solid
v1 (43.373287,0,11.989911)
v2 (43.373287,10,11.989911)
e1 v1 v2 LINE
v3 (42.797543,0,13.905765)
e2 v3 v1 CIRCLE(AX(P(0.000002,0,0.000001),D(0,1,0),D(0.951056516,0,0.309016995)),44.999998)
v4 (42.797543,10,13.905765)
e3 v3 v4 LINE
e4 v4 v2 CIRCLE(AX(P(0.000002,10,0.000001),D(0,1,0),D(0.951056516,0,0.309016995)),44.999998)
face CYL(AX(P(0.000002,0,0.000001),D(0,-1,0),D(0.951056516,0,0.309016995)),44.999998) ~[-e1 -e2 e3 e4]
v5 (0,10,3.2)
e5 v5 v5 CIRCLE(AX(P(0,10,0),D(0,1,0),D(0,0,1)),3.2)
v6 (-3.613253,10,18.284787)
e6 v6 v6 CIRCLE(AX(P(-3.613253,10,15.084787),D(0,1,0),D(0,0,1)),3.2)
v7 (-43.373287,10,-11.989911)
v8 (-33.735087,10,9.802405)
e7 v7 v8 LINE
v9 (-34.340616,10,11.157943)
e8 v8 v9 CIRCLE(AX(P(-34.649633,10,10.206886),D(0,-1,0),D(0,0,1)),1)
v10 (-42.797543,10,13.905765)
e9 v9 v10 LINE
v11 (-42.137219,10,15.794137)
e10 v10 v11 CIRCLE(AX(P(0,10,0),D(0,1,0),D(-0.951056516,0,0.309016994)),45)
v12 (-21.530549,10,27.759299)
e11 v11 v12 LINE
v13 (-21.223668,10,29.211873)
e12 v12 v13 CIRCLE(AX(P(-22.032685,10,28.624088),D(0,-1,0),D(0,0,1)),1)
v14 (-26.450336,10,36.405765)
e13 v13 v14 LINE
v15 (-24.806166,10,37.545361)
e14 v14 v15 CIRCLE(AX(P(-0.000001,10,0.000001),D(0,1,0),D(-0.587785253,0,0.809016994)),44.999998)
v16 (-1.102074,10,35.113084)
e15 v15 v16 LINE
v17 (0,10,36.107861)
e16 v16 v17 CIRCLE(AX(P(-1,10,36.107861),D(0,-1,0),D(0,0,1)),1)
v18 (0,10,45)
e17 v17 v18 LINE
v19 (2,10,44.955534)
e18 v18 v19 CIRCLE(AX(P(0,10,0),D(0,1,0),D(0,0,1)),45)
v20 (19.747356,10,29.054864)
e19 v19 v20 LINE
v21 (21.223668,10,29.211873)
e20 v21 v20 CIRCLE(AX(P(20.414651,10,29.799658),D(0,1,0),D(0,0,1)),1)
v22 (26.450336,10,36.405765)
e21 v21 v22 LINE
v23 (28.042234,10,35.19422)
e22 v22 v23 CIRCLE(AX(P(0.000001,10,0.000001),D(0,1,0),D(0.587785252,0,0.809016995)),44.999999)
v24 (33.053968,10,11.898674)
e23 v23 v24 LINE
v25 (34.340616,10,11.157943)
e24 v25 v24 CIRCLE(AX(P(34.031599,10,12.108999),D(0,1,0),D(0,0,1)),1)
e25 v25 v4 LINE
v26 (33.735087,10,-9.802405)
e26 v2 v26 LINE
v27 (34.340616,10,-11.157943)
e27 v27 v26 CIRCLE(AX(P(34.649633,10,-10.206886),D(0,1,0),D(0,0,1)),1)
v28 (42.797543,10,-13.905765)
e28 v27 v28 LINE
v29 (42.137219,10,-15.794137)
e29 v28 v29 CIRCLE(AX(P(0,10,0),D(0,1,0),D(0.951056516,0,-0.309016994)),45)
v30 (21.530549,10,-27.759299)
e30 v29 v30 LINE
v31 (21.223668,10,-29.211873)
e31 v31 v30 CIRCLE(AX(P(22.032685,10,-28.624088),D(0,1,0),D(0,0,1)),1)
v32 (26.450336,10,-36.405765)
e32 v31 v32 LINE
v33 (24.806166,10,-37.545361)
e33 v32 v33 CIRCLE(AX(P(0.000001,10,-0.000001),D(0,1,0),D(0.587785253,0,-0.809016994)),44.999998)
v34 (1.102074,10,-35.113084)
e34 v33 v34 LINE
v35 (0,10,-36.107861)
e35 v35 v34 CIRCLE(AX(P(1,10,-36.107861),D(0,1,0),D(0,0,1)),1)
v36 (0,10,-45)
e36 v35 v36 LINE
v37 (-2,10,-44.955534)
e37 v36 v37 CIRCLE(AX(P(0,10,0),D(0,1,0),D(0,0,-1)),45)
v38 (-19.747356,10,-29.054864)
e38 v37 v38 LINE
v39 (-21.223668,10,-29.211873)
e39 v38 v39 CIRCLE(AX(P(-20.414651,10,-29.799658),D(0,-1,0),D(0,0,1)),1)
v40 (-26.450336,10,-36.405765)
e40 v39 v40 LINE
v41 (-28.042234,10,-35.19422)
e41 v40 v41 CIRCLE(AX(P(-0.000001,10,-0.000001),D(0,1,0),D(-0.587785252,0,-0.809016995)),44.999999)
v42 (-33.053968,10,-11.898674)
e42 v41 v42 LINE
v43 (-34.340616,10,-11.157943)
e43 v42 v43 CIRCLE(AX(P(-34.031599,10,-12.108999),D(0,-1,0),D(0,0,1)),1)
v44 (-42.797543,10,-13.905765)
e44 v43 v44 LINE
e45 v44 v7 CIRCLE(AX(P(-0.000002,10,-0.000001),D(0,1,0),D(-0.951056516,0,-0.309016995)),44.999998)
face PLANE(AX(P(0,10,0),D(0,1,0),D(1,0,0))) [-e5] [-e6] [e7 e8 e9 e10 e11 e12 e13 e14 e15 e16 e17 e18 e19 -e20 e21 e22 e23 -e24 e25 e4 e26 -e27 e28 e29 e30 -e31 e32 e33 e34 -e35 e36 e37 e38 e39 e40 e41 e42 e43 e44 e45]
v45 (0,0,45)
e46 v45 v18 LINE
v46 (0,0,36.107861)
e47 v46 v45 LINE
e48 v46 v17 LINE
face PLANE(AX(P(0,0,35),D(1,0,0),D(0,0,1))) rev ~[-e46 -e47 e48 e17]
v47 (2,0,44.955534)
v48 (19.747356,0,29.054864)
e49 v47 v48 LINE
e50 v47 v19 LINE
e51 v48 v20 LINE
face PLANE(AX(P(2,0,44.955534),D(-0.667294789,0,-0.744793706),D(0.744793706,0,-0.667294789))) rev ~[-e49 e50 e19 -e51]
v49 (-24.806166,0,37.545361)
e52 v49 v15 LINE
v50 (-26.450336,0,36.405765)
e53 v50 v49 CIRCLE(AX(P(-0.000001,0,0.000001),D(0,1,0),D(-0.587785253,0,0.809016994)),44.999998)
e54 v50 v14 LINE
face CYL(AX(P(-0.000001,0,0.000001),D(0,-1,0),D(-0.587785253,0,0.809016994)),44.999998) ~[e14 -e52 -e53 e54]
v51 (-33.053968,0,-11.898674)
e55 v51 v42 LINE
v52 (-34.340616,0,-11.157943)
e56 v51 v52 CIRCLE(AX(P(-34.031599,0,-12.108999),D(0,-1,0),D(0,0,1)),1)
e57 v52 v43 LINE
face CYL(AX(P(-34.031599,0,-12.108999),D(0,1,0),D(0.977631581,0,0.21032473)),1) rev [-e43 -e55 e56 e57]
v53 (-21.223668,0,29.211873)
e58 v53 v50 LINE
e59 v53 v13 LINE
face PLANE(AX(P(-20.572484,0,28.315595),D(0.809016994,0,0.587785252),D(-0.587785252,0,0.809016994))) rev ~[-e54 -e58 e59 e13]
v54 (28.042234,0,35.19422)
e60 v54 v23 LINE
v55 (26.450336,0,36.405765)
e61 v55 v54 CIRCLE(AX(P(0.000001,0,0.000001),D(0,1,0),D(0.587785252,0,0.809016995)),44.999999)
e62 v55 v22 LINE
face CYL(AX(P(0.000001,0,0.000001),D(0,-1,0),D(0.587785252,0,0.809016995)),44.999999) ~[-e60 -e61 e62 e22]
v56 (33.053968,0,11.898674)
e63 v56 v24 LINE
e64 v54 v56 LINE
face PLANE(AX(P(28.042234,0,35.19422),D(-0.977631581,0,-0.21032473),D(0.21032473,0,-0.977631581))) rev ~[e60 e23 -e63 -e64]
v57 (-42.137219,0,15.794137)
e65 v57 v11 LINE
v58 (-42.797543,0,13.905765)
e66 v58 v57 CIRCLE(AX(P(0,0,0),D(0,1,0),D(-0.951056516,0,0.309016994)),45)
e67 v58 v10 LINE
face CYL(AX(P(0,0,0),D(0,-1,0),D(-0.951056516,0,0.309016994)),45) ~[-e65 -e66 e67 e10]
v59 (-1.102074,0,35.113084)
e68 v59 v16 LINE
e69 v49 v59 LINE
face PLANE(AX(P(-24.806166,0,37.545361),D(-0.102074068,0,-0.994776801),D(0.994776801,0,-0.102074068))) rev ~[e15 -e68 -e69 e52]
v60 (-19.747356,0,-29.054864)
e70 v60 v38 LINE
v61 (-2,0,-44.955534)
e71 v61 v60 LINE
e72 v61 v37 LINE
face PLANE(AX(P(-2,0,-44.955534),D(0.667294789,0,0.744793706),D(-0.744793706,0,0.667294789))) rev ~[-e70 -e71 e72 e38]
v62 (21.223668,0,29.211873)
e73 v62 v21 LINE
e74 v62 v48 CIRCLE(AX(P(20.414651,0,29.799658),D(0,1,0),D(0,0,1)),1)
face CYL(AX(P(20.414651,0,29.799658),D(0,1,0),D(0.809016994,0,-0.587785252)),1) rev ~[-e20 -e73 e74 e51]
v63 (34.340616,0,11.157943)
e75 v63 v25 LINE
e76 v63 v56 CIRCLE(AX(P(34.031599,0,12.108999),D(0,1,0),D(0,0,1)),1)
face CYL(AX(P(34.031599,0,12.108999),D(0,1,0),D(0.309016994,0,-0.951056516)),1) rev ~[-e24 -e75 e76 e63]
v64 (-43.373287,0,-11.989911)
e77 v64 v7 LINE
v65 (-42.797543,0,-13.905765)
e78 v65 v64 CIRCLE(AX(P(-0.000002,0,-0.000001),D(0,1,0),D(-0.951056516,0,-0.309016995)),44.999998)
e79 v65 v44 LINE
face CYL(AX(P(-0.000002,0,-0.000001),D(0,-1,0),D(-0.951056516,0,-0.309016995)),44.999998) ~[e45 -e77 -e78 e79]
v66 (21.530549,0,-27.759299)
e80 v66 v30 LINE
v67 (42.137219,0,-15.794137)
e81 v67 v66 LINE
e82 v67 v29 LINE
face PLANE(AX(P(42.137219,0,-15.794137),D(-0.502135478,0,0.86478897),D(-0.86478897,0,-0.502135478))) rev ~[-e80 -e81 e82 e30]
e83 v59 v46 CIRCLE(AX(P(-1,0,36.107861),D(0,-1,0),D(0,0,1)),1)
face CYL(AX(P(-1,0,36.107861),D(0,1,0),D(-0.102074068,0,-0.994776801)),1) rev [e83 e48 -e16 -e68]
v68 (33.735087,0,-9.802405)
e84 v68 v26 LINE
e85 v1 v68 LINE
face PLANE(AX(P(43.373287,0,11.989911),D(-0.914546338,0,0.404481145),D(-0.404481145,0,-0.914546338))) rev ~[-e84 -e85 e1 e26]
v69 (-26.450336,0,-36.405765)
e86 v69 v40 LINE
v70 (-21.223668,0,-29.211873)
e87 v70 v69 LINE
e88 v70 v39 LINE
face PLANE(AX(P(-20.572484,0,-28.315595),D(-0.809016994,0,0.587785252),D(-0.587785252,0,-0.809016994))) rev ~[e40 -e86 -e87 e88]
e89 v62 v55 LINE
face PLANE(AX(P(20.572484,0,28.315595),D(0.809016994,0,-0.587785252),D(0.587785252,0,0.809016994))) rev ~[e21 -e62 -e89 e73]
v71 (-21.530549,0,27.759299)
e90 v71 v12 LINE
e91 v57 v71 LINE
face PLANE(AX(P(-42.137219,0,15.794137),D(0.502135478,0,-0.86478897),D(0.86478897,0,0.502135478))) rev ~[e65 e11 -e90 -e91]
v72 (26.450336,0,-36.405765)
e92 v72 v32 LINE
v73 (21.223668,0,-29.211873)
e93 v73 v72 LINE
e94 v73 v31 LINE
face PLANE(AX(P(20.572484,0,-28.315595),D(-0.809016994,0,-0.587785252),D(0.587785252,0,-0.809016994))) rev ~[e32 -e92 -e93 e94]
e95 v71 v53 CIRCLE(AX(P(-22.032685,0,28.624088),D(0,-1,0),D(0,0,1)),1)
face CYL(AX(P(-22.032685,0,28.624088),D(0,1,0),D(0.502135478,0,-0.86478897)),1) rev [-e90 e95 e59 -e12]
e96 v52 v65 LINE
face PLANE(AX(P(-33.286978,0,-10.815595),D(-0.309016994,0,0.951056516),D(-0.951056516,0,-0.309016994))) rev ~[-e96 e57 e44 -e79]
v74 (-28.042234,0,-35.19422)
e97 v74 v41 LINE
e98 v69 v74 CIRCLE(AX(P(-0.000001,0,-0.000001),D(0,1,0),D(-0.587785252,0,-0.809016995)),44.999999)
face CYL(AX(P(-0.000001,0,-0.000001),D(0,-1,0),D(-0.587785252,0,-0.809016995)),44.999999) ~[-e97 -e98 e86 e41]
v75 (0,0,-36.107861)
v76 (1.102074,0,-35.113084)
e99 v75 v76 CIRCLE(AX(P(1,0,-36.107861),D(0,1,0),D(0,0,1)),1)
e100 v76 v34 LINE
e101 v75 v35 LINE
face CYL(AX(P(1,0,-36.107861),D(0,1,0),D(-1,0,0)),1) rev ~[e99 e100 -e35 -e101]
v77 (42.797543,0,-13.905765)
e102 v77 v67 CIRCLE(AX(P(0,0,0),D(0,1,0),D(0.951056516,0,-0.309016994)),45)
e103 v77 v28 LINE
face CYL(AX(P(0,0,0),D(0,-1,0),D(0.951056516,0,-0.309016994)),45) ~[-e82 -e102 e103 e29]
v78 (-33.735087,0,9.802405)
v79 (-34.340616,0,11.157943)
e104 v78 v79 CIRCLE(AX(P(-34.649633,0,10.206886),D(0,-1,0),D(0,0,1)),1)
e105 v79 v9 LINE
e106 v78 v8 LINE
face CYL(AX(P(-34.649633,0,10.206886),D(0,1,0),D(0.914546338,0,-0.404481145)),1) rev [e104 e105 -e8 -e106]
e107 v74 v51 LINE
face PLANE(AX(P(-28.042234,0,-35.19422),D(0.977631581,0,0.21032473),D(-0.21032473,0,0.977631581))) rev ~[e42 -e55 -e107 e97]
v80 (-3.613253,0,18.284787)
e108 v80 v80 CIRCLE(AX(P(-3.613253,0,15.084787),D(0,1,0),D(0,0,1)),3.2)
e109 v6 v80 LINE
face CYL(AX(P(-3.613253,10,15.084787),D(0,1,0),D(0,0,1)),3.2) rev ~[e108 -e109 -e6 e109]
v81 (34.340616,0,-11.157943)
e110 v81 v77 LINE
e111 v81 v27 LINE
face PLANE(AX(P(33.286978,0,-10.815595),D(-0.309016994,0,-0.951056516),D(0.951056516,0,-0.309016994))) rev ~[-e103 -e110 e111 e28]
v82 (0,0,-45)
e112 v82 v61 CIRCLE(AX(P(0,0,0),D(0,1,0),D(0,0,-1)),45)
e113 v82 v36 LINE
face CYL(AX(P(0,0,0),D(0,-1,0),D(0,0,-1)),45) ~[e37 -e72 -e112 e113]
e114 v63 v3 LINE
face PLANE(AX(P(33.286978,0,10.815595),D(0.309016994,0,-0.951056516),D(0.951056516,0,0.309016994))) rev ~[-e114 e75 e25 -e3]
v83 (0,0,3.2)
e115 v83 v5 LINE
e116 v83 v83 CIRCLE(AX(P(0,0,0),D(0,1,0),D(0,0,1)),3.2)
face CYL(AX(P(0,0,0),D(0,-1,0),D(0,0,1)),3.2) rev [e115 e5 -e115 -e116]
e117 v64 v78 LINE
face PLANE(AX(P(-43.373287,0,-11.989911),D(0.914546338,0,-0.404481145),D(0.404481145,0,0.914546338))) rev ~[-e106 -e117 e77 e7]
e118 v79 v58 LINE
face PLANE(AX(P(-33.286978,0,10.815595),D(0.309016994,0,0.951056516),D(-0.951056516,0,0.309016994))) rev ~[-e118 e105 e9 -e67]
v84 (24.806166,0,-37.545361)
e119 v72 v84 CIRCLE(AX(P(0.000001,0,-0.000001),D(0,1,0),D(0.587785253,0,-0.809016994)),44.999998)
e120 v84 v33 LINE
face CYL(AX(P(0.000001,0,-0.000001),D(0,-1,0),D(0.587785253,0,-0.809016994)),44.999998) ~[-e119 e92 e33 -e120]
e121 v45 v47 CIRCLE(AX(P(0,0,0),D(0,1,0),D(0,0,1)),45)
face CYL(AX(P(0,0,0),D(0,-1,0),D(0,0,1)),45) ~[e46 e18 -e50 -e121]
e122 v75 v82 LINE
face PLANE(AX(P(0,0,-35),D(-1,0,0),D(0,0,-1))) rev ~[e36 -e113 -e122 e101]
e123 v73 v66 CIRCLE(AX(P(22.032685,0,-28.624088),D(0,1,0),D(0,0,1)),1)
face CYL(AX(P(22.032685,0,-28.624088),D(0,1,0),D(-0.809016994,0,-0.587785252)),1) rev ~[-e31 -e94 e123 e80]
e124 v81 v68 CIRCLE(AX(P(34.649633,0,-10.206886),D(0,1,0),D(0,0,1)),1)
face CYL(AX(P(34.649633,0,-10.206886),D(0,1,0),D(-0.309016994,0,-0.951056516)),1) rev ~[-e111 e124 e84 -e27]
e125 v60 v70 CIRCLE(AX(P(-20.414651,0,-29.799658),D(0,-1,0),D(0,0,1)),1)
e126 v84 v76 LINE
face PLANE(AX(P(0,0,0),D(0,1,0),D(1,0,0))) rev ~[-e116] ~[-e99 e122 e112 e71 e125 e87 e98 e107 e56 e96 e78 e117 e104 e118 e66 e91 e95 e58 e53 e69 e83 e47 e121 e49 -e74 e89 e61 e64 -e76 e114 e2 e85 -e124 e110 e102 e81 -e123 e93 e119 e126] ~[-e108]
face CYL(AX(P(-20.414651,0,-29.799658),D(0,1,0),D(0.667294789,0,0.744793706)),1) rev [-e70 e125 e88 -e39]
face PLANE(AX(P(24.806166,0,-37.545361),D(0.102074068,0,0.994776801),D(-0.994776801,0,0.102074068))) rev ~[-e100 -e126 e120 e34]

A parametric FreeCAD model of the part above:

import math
import FreeCAD as App
import Part
import Sketcher

V = App.Vector
Q = App.Units.Quantity


def edges_at(feature, points):
    """Names of the edges that pass closest to the given points."""
    edges = feature.Shape.Edges
    near = lambda p: min(range(len(edges)), key=lambda i: edges[i].distToShape(Part.Vertex(*p))[0])
    return sorted({f"Edge{near(p) + 1}" for p in points})

doc = App.newDocument("Part")
body = doc.addObject("PartDesign::Body", "Body")

# Sketch on XZ plane
sketch1 = body.newObject("Sketcher::SketchObject", "Sketch")
sketch1.AttachmentSupport = (doc.getObject("XZ_Plane"), [""])
sketch1.MapMode = "FlatFace"
sketch1.addGeometry(Part.LineSegment(V(-2, -45, 0), V(-20.6, -28.3, 0)), False)
sketch1.addGeometry(Part.LineSegment(V(-20.6, -28.3, 0), V(-26.5, -36.4, 0)), False)
sketch1.addGeometry(Part.ArcOfCircle(Part.Circle(V(0, 0, 0), V(0, 0, 1), 45), math.radians(-128.55), math.radians(-126)), False)
sketch1.addGeometry(Part.LineSegment(V(-28, -35.2, 0), V(-33.3, -10.8, 0)), False)
sketch1.addGeometry(Part.LineSegment(V(-33.3, -10.8, 0), V(-42.8, -13.9, 0)), False)
sketch1.addGeometry(Part.ArcOfCircle(Part.Circle(V(0, 0, 0), V(0, 0, 1), 45), math.radians(-164.55), math.radians(-162)), False)
sketch1.addGeometry(Part.LineSegment(V(-43.4, -12, 0), V(-33.3, 10.8, 0)), False)
sketch1.addGeometry(Part.LineSegment(V(-33.3, 10.8, 0), V(-42.8, 13.9, 0)), False)
sketch1.addGeometry(Part.ArcOfCircle(Part.Circle(V(0, 0, 0), V(0, 0, 1), 45), math.radians(159.45), math.radians(162)), False)
sketch1.addGeometry(Part.LineSegment(V(-42.1, 15.8, 0), V(-20.6, 28.3, 0)), False)
sketch1.addGeometry(Part.LineSegment(V(-20.6, 28.3, 0), V(-26.5, 36.4, 0)), False)
sketch1.addGeometry(Part.ArcOfCircle(Part.Circle(V(0, 0, 0), V(0, 0, 1), 45), math.radians(123.45), math.radians(126)), False)
sketch1.addGeometry(Part.LineSegment(V(-24.8, 37.5, 0), V(0, 35, 0)), False)
sketch1.addGeometry(Part.LineSegment(V(0, 35, 0), V(0, 45, 0)), False)
sketch1.addGeometry(Part.ArcOfCircle(Part.Circle(V(0, 0, 0), V(0, 0, 1), 45), math.radians(87.45), math.radians(90)), False)
sketch1.addGeometry(Part.LineSegment(V(2, 45, 0), V(20.6, 28.3, 0)), False)
sketch1.addGeometry(Part.LineSegment(V(20.6, 28.3, 0), V(26.5, 36.4, 0)), False)
sketch1.addGeometry(Part.ArcOfCircle(Part.Circle(V(0, 0, 0), V(0, 0, 1), 45), math.radians(51.45), math.radians(54)), False)
sketch1.addGeometry(Part.LineSegment(V(28, 35.2, 0), V(33.3, 10.8, 0)), False)
sketch1.addGeometry(Part.LineSegment(V(33.3, 10.8, 0), V(42.8, 13.9, 0)), False)
sketch1.addGeometry(Part.ArcOfCircle(Part.Circle(V(0, 0, 0), V(0, 0, 1), 45), math.radians(15.45), math.radians(18)), False)
sketch1.addGeometry(Part.LineSegment(V(43.4, 12, 0), V(33.3, -10.8, 0)), False)
sketch1.addGeometry(Part.LineSegment(V(33.3, -10.8, 0), V(42.8, -13.9, 0)), False)
sketch1.addGeometry(Part.ArcOfCircle(Part.Circle(V(0, 0, 0), V(0, 0, 1), 45), math.radians(-20.55), math.radians(-18)), False)
sketch1.addGeometry(Part.LineSegment(V(42.1, -15.8, 0), V(20.6, -28.3, 0)), False)
sketch1.addGeometry(Part.LineSegment(V(20.6, -28.3, 0), V(26.5, -36.4, 0)), False)
sketch1.addGeometry(Part.ArcOfCircle(Part.Circle(V(0, 0, 0), V(0, 0, 1), 45), math.radians(-56.55), math.radians(-54)), False)
sketch1.addGeometry(Part.LineSegment(V(24.8, -37.5, 0), V(0, -35, 0)), False)
sketch1.addGeometry(Part.LineSegment(V(0, -35, 0), V(0, -45, 0)), False)
sketch1.addGeometry(Part.ArcOfCircle(Part.Circle(V(0, 0, 0), V(0, 0, 1), 45), math.radians(-92.55), math.radians(-90)), False)
sketch1.addGeometry(Part.Circle(V(0, 0, 0), V(0, 0, 1), 3.2), False)
sketch1.addConstraint(Sketcher.Constraint("Coincident", 0, 2, 1, 1))
sketch1.addConstraint(Sketcher.Constraint("Coincident", 1, 2, 2, 2))
sketch1.addConstraint(Sketcher.Constraint("Coincident", 2, 1, 3, 1))
sketch1.addConstraint(Sketcher.Constraint("Coincident", 3, 2, 4, 1))
sketch1.addConstraint(Sketcher.Constraint("Coincident", 4, 2, 5, 2))
sketch1.addConstraint(Sketcher.Constraint("Coincident", 5, 1, 6, 1))
sketch1.addConstraint(Sketcher.Constraint("Coincident", 6, 2, 7, 1))
sketch1.addConstraint(Sketcher.Constraint("Coincident", 7, 2, 8, 2))
sketch1.addConstraint(Sketcher.Constraint("Coincident", 8, 1, 9, 1))
sketch1.addConstraint(Sketcher.Constraint("Coincident", 9, 2, 10, 1))
sketch1.addConstraint(Sketcher.Constraint("Coincident", 10, 2, 11, 2))
sketch1.addConstraint(Sketcher.Constraint("Coincident", 11, 1, 12, 1))
sketch1.addConstraint(Sketcher.Constraint("Coincident", 12, 2, 13, 1))
sketch1.addConstraint(Sketcher.Constraint("Coincident", 13, 2, 14, 2))
sketch1.addConstraint(Sketcher.Constraint("Coincident", 14, 1, 15, 1))
sketch1.addConstraint(Sketcher.Constraint("Coincident", 15, 2, 16, 1))
sketch1.addConstraint(Sketcher.Constraint("Coincident", 16, 2, 17, 2))
sketch1.addConstraint(Sketcher.Constraint("Coincident", 17, 1, 18, 1))
sketch1.addConstraint(Sketcher.Constraint("Coincident", 18, 2, 19, 1))
sketch1.addConstraint(Sketcher.Constraint("Coincident", 19, 2, 20, 2))
sketch1.addConstraint(Sketcher.Constraint("Coincident", 20, 1, 21, 1))
sketch1.addConstraint(Sketcher.Constraint("Coincident", 21, 2, 22, 1))
sketch1.addConstraint(Sketcher.Constraint("Coincident", 22, 2, 23, 2))
sketch1.addConstraint(Sketcher.Constraint("Coincident", 23, 1, 24, 1))
sketch1.addConstraint(Sketcher.Constraint("Coincident", 24, 2, 25, 1))
sketch1.addConstraint(Sketcher.Constraint("Coincident", 25, 2, 26, 2))
sketch1.addConstraint(Sketcher.Constraint("Coincident", 26, 1, 27, 1))
sketch1.addConstraint(Sketcher.Constraint("Coincident", 27, 2, 28, 1))
sketch1.addConstraint(Sketcher.Constraint("Coincident", 28, 2, 29, 2))
sketch1.addConstraint(Sketcher.Constraint("Coincident", 29, 1, 0, 1))
sketch1.addConstraint(Sketcher.Constraint("Vertical", 13))
sketch1.addConstraint(Sketcher.Constraint("Vertical", 28))
sketch1.addConstraint(Sketcher.Constraint("Coincident", 2, 3, -1, 1))
sketch1.addConstraint(Sketcher.Constraint("Coincident", 5, 3, -1, 1))
sketch1.addConstraint(Sketcher.Constraint("Coincident", 8, 3, -1, 1))
sketch1.addConstraint(Sketcher.Constraint("Coincident", 11, 3, -1, 1))
sketch1.addConstraint(Sketcher.Constraint("Coincident", 14, 3, -1, 1))
sketch1.addConstraint(Sketcher.Constraint("Coincident", 17, 3, -1, 1))
sketch1.addConstraint(Sketcher.Constraint("Coincident", 20, 3, -1, 1))
sketch1.addConstraint(Sketcher.Constraint("Coincident", 23, 3, -1, 1))
sketch1.addConstraint(Sketcher.Constraint("Coincident", 26, 3, -1, 1))
sketch1.addConstraint(Sketcher.Constraint("Coincident", 29, 3, -1, 1))
sketch1.addConstraint(Sketcher.Constraint("Coincident", 30, 3, -1, 1))
sketch1.addConstraint(Sketcher.Constraint("Equal", 2, 5))
sketch1.addConstraint(Sketcher.Constraint("Equal", 2, 8))
sketch1.addConstraint(Sketcher.Constraint("Equal", 5, 11))
sketch1.addConstraint(Sketcher.Constraint("Equal", 11, 14))
sketch1.addConstraint(Sketcher.Constraint("Equal", 14, 17))
sketch1.addConstraint(Sketcher.Constraint("Equal", 17, 20))
sketch1.addConstraint(Sketcher.Constraint("Equal", 17, 23))
sketch1.addConstraint(Sketcher.Constraint("Equal", 20, 26))
sketch1.addConstraint(Sketcher.Constraint("Equal", 26, 29))
sketch1.addConstraint(Sketcher.Constraint("Symmetric", 0, 2, 15, 2, -1, 1))
sketch1.addConstraint(Sketcher.Constraint("Symmetric", 3, 2, 18, 2, -1, 1))
sketch1.addConstraint(Sketcher.Constraint("Symmetric", 6, 2, 21, 2, -1, 1))
sketch1.addConstraint(Sketcher.Constraint("Symmetric", 9, 2, 24, 2, -1, 1))
sketch1.addConstraint(Sketcher.Constraint("Symmetric", 12, 2, 27, 2, -1, 1))
sketch1.addConstraint(Sketcher.Constraint("Symmetric", 9, 2, 15, 2, -2))
sketch1.addConstraint(Sketcher.Constraint("Symmetric", 6, 2, 18, 2, -2))
sketch1.addConstraint(Sketcher.Constraint("PointOnObject", 12, 2, -2))
sketch1.addConstraint(Sketcher.Constraint("Parallel", 0, 15))
sketch1.addConstraint(Sketcher.Constraint("Parallel", 1, 16))
sketch1.addConstraint(Sketcher.Constraint("Parallel", 3, 18))
sketch1.addConstraint(Sketcher.Constraint("Parallel", 4, 19))
sketch1.addConstraint(Sketcher.Constraint("Parallel", 6, 21))
sketch1.addConstraint(Sketcher.Constraint("Parallel", 7, 22))
sketch1.addConstraint(Sketcher.Constraint("Parallel", 9, 24))
sketch1.addConstraint(Sketcher.Constraint("Parallel", 10, 25))
sketch1.addConstraint(Sketcher.Constraint("Parallel", 12, 27))
sketch1.addConstraint(Sketcher.Constraint("Horizontal", 10, 2, 16, 2))
sketch1.addConstraint(Sketcher.Constraint("Horizontal", 7, 2, 19, 2))
sketch1.addConstraint(Sketcher.Constraint("Equal", 0, 3))
sketch1.addConstraint(Sketcher.Constraint("Equal", 1, 4))
sketch1.addConstraint(Sketcher.Constraint("Equal", 3, 6))
sketch1.addConstraint(Sketcher.Constraint("Equal", 6, 9))
sketch1.addConstraint(Sketcher.Constraint("Equal", 9, 12))
sketch1.addConstraint(Sketcher.Constraint("Radius", 2, 44.999999))
sketch1.addConstraint(Sketcher.Constraint("Diameter", 30, 6.4))
sketch1.addConstraint(Sketcher.Constraint("DistanceY", 13, 1, 13, 2, 10.0))
sketch1.addConstraint(Sketcher.Constraint("Angle", 1, Q("-126 deg")))
sketch1.addConstraint(Sketcher.Constraint("Angle", 4, Q("-162 deg")))
sketch1.addConstraint(Sketcher.Constraint("Distance", 1, 10.0))
sketch1.addConstraint(Sketcher.Constraint("DistanceX", -1, 1, 14, 1, 2.0))
sketch1.addConstraint(Sketcher.Constraint("DistanceY", 0, 2, 3, 2, 17.5))
sketch1.addConstraint(Sketcher.Constraint("DistanceY", 4, 2, 8, 1, 29.699902))
pad1 = body.newObject("PartDesign::Pad", "Pad")
pad1.Profile = sketch1
pad1.Length = 10
pad1.Reversed = True
doc.recompute()

fillet = body.newObject("PartDesign::Fillet", "Fillet")
fillet.Base = (pad1, edges_at(pad1, [
    (-20.572, 5, 28.316),
    (-33.287, 5, 10.816),
    (-33.287, 5, -10.816),
    (-20.572, 5, -28.316),
    (0, 5, -35),
    (20.572, 5, -28.316),
    (33.287, 5, -10.816),
    (33.287, 5, 10.816),
    (20.572, 5, 28.316),
    (0, 5, 35),
]))
fillet.Radius = 1

# Sketch on XZ plane
sketch2 = body.newObject("Sketcher::SketchObject", "Sketch001")
sketch2.AttachmentSupport = (doc.getObject("XZ_Plane"), [""])
sketch2.MapMode = "FlatFace"
sketch2.AttachmentOffset = App.Placement(V(0, 0, -10), App.Rotation())
sketch2.addGeometry(Part.Circle(V(-3.6, 15.1, 0), V(0, 0, 1), 3.2), False)
sketch2.addConstraint(Sketcher.Constraint("Diameter", 0, 6.4))
sketch2.addConstraint(Sketcher.Constraint("DistanceX", 0, 3, -1, 1, 3.613252))
sketch2.addConstraint(Sketcher.Constraint("DistanceY", -1, 1, 0, 3, 15.084788))
pocket1 = body.newObject("PartDesign::Pocket", "Pocket")
pocket1.Profile = sketch2
pocket1.Length = 40
pocket1.Reversed = True

doc.recompute()
